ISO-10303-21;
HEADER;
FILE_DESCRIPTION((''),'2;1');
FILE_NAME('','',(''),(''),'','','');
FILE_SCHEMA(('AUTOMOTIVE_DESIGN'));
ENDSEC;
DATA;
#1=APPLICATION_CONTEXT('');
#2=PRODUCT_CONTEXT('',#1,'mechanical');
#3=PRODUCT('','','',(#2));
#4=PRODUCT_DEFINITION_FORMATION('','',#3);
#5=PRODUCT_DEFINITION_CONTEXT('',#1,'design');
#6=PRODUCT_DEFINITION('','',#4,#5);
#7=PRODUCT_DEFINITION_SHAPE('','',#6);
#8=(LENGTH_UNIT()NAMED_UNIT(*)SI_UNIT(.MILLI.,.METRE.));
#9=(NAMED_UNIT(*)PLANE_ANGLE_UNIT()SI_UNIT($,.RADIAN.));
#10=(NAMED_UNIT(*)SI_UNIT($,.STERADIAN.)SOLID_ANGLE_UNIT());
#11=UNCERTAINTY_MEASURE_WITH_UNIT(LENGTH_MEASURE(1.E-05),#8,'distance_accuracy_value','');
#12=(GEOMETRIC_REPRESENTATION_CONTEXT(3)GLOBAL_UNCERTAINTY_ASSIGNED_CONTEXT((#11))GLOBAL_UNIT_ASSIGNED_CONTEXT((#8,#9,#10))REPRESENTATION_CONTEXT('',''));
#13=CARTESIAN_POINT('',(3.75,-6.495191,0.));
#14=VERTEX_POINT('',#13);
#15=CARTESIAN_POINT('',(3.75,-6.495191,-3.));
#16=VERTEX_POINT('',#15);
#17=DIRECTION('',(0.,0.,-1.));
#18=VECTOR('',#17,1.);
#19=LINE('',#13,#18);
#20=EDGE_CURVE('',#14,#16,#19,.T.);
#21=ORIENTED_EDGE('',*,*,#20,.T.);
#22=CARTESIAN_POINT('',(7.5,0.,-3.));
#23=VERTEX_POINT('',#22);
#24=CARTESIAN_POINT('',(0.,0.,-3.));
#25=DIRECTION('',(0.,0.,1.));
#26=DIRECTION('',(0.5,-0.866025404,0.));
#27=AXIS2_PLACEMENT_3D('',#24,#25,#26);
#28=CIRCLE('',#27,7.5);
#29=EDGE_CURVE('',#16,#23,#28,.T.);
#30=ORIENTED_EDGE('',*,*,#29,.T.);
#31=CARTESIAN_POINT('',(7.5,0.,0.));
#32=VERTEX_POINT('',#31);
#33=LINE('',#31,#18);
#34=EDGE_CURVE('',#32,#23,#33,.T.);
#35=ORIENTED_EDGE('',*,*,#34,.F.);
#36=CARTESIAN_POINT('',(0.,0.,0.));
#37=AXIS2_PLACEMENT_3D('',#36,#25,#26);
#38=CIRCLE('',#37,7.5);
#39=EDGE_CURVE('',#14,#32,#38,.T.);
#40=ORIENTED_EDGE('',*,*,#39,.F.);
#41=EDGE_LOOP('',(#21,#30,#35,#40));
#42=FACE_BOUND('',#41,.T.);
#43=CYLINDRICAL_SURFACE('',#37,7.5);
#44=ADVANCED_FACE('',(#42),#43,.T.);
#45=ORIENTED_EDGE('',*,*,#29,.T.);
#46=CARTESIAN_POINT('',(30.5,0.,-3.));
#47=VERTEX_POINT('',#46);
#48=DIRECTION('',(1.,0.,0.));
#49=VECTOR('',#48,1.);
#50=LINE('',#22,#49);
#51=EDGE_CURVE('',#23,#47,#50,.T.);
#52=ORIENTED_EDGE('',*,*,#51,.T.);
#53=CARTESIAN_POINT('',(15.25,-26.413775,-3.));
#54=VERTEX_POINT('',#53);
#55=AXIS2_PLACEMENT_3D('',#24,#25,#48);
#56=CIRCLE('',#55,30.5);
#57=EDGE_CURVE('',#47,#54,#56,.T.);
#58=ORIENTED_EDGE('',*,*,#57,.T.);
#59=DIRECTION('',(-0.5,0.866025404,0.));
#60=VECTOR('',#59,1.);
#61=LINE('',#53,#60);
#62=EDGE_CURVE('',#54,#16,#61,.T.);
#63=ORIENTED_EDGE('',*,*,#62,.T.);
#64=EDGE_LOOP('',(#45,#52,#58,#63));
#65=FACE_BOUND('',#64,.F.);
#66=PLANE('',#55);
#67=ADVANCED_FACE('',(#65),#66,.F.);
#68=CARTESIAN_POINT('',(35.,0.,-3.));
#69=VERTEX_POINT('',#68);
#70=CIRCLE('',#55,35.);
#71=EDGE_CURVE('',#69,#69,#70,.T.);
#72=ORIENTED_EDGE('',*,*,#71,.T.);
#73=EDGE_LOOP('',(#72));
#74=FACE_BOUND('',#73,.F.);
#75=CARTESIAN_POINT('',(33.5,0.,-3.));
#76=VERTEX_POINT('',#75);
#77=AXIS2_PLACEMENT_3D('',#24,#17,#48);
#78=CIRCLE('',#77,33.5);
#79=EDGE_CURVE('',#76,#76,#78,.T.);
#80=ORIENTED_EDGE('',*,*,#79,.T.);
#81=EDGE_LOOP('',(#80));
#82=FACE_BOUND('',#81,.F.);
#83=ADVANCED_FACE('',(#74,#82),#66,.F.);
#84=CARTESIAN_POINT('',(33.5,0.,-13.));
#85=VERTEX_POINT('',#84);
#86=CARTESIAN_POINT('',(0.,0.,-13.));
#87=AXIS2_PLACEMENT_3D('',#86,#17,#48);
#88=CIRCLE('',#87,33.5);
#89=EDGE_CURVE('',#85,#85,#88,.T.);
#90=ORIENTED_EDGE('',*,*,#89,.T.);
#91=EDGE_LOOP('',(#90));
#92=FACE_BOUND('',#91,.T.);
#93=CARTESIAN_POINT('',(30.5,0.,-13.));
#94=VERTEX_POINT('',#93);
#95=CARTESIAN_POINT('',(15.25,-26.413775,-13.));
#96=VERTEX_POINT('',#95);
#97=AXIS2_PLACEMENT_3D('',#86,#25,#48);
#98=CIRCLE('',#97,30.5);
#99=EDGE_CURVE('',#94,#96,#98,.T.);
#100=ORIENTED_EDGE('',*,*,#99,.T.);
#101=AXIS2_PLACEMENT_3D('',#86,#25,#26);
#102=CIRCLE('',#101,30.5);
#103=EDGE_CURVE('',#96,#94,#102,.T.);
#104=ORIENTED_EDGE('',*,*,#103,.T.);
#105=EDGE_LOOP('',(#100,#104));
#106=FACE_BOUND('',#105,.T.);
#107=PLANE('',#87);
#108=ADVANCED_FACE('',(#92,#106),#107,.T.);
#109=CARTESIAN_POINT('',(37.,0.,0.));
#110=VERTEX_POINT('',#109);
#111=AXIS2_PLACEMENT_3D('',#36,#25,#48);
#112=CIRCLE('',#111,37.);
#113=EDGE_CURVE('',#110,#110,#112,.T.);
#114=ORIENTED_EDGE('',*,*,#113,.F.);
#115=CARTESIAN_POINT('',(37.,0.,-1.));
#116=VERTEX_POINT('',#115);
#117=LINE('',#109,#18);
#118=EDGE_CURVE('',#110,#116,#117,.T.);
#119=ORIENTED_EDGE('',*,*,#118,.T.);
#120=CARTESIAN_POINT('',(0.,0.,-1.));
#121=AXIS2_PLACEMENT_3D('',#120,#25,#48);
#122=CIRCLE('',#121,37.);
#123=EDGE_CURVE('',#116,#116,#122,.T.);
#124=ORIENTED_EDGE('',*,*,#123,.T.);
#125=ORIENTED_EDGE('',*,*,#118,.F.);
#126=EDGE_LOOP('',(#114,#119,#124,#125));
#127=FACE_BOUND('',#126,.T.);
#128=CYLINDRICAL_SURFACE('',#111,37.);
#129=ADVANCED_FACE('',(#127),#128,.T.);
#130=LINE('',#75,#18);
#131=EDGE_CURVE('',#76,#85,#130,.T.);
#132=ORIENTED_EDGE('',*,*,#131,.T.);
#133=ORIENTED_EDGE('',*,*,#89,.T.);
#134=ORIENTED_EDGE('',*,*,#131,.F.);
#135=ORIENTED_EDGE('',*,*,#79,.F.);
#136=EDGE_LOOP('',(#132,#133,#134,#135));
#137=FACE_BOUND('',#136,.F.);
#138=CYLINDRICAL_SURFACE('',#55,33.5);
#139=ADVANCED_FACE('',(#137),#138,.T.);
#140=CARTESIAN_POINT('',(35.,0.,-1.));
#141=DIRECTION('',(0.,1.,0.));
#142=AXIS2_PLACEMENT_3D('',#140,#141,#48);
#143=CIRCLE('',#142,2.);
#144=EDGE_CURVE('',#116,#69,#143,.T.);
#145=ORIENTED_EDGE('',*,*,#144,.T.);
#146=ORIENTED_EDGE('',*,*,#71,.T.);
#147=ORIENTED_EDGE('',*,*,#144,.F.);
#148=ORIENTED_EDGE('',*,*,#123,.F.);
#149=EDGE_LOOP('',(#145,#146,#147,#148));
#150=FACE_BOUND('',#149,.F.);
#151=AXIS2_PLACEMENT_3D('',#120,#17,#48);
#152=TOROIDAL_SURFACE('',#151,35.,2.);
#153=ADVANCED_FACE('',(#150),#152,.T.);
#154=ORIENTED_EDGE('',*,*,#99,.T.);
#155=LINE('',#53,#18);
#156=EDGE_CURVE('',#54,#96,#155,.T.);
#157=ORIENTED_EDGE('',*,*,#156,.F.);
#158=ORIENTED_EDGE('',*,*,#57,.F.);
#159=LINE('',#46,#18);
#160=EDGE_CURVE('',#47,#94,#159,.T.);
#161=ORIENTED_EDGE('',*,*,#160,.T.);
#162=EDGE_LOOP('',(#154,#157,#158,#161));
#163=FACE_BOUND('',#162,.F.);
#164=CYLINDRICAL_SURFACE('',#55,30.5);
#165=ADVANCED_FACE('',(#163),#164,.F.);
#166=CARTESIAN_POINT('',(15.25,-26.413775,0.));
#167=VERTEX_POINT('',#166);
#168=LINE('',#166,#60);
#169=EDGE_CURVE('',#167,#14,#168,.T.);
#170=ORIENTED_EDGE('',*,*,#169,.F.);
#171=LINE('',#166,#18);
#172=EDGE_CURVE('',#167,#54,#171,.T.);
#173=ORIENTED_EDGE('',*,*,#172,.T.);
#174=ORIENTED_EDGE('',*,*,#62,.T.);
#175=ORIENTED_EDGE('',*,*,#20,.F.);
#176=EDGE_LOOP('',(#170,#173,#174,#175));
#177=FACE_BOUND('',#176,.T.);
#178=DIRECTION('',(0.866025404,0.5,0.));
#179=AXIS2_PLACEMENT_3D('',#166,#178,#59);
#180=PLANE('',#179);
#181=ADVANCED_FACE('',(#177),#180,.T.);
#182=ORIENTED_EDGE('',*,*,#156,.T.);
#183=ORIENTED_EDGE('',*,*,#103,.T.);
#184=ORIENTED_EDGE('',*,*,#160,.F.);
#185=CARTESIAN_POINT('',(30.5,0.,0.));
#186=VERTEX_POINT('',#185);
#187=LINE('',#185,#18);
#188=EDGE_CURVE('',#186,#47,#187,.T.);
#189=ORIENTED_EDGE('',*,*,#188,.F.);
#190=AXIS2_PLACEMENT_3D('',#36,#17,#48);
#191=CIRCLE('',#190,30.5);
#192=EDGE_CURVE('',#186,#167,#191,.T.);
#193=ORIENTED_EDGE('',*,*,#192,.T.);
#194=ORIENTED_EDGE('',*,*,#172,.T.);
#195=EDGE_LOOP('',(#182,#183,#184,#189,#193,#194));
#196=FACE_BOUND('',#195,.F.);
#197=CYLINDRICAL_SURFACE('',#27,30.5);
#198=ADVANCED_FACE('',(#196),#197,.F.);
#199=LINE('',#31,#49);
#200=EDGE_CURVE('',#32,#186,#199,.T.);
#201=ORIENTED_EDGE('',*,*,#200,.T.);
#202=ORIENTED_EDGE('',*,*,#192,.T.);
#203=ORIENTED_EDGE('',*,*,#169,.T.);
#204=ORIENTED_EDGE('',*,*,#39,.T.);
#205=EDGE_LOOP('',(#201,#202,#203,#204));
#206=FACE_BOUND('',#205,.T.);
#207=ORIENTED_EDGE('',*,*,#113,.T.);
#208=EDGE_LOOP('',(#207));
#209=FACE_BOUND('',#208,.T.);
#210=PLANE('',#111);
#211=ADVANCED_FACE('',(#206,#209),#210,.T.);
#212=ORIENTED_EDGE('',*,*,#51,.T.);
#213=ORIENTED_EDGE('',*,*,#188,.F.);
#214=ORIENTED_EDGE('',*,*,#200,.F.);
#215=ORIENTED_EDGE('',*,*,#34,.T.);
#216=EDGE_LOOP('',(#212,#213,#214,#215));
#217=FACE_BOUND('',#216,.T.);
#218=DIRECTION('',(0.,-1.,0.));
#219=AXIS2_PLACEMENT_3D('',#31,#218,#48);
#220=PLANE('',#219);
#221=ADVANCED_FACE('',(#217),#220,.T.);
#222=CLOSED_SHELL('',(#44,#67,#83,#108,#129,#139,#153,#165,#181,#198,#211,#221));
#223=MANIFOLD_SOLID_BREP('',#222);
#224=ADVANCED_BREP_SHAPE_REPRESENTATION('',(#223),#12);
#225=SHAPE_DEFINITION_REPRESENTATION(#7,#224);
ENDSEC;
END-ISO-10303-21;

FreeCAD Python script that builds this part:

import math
import FreeCAD as App
import Part
import Sketcher
Q = App.Units.Quantity


def edges_at(feature, points):
    """Names of the edges that pass closest to the given points."""
    edges = feature.Shape.Edges
    near = lambda p: min(range(len(edges)), key=lambda i: edges[i].distToShape(Part.Vertex(*p))[0])
    return sorted({f"Edge{near(p) + 1}" for p in points})

doc = App.newDocument("Part")
body = doc.addObject("PartDesign::Body", "Body")

# Sketch on XY plane
sketch1 = body.newObject("Sketcher::SketchObject", "Sketch")
sketch1.AttachmentSupport = (doc.getObject("XY_Plane"), [""])
sketch1.MapMode = "FlatFace"
sketch1.addGeometry([
    Part.Circle(App.Vector(0, 0, 0), App.Vector(0, 0, 1), 37),  # 0
    Part.LineSegment(App.Vector(15, -26, 0), App.Vector(4, -6, 0)),  # 1
    Part.ArcOfCircle(Part.Circle(App.Vector(0, 0, 0), App.Vector(0, 0, 1), 8), math.radians(-60), math.radians(0)),  # 2
    Part.LineSegment(App.Vector(8, 0, 0), App.Vector(30, 0, 0)),  # 3
    Part.ArcOfCircle(Part.Circle(App.Vector(0, 0, 0), App.Vector(0, 0, 1), 30), math.radians(-60), math.radians(0)),  # 4
], False)
sketch1.addConstraint([
    Sketcher.Constraint("Coincident", 1, 2, 2, 1),
    Sketcher.Constraint("Coincident", 2, 2, 3, 1),
    Sketcher.Constraint("Coincident", 3, 2, 4, 2),
    Sketcher.Constraint("Coincident", 4, 1, 1, 1),
    Sketcher.Constraint("Horizontal", 3),
    Sketcher.Constraint("Coincident", 0, 3, -1, 1),
    Sketcher.Constraint("Coincident", 2, 3, -1, 1),
    Sketcher.Constraint("Coincident", 4, 3, -1, 1),
    Sketcher.Constraint("PointOnObject", 2, 2, -1),
    Sketcher.Constraint("Diameter", 0, Q("74 mm")),
    Sketcher.Constraint("Radius", 2, Q("7.5 mm")),
    Sketcher.Constraint("Radius", 4, Q("30.5 mm")),
    Sketcher.Constraint("Angle", 1, Q("120 deg")),
    Sketcher.Constraint("DistanceX", -1, 1, 1, 2, Q("3.75 mm")),
])
pad1 = body.newObject("PartDesign::Pad", "Pad")
pad1.Profile = sketch1
pad1.Length = 3
pad1.Reversed = True
doc.recompute()

fillet = body.newObject("PartDesign::Fillet", "Fillet")
fillet.Base = (pad1, edges_at(pad1, [(-37, 0, -3)]))
fillet.Radius = 2

# Sketch on XY plane
sketch2 = body.newObject("Sketcher::SketchObject", "Sketch001")
sketch2.AttachmentSupport = (doc.getObject("XY_Plane"), [""])
sketch2.MapMode = "FlatFace"
sketch2.AttachmentOffset = App.Placement(App.Vector(0, 0, -3), App.Rotation())
sketch2.addGeometry([
    Part.Circle(App.Vector(0, 0, 0), App.Vector(0, 0, 1), 34),
    Part.ArcOfCircle(Part.Circle(App.Vector(0, 0, 0), App.Vector(0, 0, 1), 30), math.radians(0), math.radians(300)),
    Part.ArcOfCircle(Part.Circle(App.Vector(0, 0, 0), App.Vector(0, 0, 1), 30), math.radians(-60), math.radians(0)),
], False)
sketch2.addConstraint([
    Sketcher.Constraint("Tangent", 1, 1, 2, 2),
    Sketcher.Constraint("Coincident", 2, 1, 1, 2),
    Sketcher.Constraint("Coincident", 0, 3, -1, 1),
    Sketcher.Constraint("Coincident", 1, 3, -1, 1),
    Sketcher.Constraint("PointOnObject", 1, 1, -1),
    Sketcher.Constraint("Diameter", 0, Q("67 mm")),
    Sketcher.Constraint("Radius", 1, Q("30.5 mm")),
    Sketcher.Constraint("DistanceX", -1, 1, 2, 1, Q("15.25 mm")),
])
pad2 = body.newObject("PartDesign::Pad", "Pad001")
pad2.Profile = sketch2
pad2.Length = 10
pad2.Reversed = True

doc.recompute()
